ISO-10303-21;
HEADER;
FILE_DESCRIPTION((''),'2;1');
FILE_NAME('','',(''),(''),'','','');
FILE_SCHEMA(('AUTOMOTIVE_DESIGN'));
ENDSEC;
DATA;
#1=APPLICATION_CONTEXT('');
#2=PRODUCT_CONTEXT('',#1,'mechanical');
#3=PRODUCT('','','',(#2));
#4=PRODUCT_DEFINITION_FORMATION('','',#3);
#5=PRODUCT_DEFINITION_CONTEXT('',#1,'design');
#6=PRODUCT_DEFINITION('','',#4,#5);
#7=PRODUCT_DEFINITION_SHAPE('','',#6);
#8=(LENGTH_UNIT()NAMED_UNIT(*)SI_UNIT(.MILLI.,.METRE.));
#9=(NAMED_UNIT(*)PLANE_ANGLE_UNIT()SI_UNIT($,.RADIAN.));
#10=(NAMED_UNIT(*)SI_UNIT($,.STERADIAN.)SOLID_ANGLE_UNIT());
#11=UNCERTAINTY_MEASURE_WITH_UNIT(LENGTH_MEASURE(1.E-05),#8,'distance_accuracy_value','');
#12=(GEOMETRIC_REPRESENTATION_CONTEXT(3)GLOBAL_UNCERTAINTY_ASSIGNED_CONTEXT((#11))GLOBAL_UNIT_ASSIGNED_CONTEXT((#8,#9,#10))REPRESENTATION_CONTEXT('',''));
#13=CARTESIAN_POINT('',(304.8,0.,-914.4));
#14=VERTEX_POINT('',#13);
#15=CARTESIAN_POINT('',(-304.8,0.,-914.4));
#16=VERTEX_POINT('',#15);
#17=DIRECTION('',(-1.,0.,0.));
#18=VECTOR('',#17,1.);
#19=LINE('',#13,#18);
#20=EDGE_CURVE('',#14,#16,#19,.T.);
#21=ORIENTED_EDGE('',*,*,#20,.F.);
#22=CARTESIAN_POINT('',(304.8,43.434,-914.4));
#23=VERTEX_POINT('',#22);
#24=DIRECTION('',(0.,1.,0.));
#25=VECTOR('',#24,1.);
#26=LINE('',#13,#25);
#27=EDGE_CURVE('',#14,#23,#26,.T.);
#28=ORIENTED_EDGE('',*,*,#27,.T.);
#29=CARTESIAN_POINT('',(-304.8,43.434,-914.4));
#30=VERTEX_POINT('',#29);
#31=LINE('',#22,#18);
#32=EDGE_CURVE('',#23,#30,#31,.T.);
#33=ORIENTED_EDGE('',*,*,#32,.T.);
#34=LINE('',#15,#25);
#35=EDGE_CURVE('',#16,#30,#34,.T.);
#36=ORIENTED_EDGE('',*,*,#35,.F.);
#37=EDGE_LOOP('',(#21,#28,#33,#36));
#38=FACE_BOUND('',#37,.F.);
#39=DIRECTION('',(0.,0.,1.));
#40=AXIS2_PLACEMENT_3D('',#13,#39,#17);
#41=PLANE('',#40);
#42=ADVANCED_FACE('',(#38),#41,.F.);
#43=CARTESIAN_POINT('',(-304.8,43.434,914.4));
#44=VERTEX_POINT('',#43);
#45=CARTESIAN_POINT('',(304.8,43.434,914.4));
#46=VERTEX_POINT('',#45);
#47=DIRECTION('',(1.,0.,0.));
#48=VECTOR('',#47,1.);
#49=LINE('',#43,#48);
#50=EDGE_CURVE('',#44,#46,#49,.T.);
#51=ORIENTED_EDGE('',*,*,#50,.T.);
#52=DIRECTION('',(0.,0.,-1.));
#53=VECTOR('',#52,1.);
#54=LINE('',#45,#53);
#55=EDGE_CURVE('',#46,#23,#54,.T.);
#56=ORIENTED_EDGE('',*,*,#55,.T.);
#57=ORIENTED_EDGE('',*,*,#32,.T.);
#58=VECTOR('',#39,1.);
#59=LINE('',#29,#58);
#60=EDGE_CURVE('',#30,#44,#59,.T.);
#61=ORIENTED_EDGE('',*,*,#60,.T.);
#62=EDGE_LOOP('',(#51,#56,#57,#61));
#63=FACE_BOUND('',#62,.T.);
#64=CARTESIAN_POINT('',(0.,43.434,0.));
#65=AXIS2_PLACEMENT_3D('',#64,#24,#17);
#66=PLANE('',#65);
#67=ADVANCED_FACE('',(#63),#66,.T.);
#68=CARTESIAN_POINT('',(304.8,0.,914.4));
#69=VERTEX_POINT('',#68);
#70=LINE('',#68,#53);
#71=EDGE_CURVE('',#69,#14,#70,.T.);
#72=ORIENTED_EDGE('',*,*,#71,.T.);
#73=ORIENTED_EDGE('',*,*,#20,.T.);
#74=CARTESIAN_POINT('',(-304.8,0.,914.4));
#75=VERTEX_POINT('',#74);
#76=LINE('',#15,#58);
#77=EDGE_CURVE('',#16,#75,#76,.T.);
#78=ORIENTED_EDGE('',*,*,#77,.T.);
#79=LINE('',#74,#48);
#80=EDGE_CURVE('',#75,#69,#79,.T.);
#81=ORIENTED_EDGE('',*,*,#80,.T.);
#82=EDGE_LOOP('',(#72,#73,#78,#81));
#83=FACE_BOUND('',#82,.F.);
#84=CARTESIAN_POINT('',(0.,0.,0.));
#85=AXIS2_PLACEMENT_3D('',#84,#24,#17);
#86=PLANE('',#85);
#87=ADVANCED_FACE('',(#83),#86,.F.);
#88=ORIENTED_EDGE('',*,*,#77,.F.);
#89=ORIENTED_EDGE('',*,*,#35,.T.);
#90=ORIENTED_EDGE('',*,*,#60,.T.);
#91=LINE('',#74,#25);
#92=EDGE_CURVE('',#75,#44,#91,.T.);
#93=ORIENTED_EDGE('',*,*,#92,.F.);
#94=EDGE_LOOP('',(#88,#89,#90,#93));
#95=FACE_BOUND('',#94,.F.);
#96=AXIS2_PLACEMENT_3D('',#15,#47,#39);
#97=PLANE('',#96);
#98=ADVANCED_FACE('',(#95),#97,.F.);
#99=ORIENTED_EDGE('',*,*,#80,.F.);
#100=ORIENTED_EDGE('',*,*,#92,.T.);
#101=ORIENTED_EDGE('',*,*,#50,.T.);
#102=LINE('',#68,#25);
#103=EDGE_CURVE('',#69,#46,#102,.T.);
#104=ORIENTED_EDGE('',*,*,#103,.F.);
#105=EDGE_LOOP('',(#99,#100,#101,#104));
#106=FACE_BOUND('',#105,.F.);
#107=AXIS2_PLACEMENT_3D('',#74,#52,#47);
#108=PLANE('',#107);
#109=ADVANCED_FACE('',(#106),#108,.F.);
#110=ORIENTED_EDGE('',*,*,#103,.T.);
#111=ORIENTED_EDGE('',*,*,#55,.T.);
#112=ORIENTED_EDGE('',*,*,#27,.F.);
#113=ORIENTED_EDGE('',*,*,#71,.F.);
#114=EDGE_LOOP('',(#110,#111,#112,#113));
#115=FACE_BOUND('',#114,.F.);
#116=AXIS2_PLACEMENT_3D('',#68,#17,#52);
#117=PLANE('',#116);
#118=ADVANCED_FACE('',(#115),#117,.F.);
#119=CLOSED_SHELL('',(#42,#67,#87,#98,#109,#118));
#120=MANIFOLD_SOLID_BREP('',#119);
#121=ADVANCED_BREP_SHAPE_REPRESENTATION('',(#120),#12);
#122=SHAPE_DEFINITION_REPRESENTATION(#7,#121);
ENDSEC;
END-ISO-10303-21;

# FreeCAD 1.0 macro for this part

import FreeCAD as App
import Part
import Sketcher
from FreeCAD import Vector
Q = App.Units.Quantity

doc = App.newDocument("Part")
body = doc.addObject("PartDesign::Body", "Body")

# Sketch on XZ plane
sketch1 = doc.addObject("Sketcher::SketchObject", "Sketch")
body.addObject(sketch1)
sketch1.AttachmentSupport = (doc.XZ_Plane, [""])
sketch1.MapMode = "FlatFace"
sketch1.addGeometry([
    Part.LineSegment(Vector(-305, -914, 0), Vector(-305, 914, 0)),
    Part.LineSegment(Vector(-305, 914, 0), Vector(305, 914, 0)),
    Part.LineSegment(Vector(305, 914, 0), Vector(305, -914, 0)),
    Part.LineSegment(Vector(305, -914, 0), Vector(-305, -914, 0)),
], False)
sketch1.addConstraint([
    Sketcher.Constraint("Coincident", 0, 2, 1, 1),
    Sketcher.Constraint("Coincident", 1, 2, 2, 1),
    Sketcher.Constraint("Coincident", 2, 2, 3, 1),
    Sketcher.Constraint("Coincident", 3, 2, 0, 1),
    Sketcher.Constraint("Vertical", 0),
    Sketcher.Constraint("Horizontal", 1),
    Sketcher.Constraint("Vertical", 2),
    Sketcher.Constraint("Horizontal", 3),
    Sketcher.Constraint("Symmetric", 0, 2, 2, 2, -1, 1),
    Sketcher.Constraint("DistanceX", 1, 1, 1, 2, Q("24 in")),
    Sketcher.Constraint("DistanceY", 0, 1, 0, 2, Q("72 in")),
])
pad1 = doc.addObject("PartDesign::Pad", "Pad")
body.addObject(pad1)
pad1.Profile = sketch1
pad1.Length = Q("1.71 in")
pad1.Reversed = True

doc.recompute()
